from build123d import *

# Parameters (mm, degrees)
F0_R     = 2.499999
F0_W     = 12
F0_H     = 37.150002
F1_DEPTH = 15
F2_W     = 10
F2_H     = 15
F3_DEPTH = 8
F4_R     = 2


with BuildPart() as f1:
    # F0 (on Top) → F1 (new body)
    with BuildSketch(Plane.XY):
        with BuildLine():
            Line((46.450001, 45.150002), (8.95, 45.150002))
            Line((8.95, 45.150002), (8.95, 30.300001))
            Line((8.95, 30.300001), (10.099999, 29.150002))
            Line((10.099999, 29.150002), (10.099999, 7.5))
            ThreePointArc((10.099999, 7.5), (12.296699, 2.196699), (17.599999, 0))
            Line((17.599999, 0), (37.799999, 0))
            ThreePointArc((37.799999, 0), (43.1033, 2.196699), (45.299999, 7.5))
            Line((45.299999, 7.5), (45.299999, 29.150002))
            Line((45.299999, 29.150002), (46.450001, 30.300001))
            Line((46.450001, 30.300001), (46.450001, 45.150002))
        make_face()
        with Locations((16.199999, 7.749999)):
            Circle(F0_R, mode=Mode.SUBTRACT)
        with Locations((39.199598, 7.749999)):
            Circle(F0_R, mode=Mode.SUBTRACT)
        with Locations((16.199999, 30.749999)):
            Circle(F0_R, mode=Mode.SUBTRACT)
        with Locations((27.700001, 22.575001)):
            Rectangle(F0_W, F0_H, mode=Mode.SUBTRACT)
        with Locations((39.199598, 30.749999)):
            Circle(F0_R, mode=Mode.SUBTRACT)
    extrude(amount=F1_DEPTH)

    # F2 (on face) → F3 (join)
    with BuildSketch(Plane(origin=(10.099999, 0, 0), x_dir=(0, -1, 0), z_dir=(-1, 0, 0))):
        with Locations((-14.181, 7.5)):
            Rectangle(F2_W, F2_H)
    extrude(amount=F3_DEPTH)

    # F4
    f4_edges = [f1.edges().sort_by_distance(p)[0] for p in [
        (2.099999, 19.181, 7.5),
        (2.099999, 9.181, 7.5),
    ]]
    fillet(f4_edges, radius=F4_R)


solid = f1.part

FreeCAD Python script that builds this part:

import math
import FreeCAD as App
import Part
import Sketcher
from FreeCAD import Vector
Q = App.Units.Quantity


def edges_at(feature, points):
    """Names of the edges that pass closest to the given points."""
    edges = feature.Shape.Edges
    near = lambda p: min(range(len(edges)), key=lambda i: edges[i].distToShape(Part.Vertex(*p))[0])
    return sorted({f"Edge{near(p) + 1}" for p in points})

doc = App.newDocument("Part")
body = doc.addObject("PartDesign::Body", "Body")

sketch1 = doc.addObject("Sketcher::SketchObject", "Sketch")
body.addObject(sketch1)
sketch1.AttachmentSupport = (doc.XY_Plane, [""])
sketch1.MapMode = "FlatFace"
sketch1.addGeometry(Part.LineSegment(Vector(46.450001, 45.150002, 0), Vector(8.95, 45.150002, 0)), False)
sketch1.addGeometry(Part.LineSegment(Vector(8.95, 45.150002, 0), Vector(8.95, 30.300001, 0)), False)
sketch1.addGeometry(Part.LineSegment(Vector(8.95, 30.300001, 0), Vector(10.099999, 29.150002, 0)), False)
sketch1.addGeometry(Part.LineSegment(Vector(10.099999, 29.150002, 0), Vector(10.099999, 7.5, 0)), False)
sketch1.addGeometry(Part.ArcOfCircle(Part.Circle(Vector(17.6, 7.500001, 0), Vector(0, 0, 1), 7.500001), math.radians(-179.999991), math.radians(-90.000009)), False)
sketch1.addGeometry(Part.LineSegment(Vector(17.599999, 0, 0), Vector(37.799999, 0, 0)), False)
sketch1.addGeometry(Part.ArcOfCircle(Part.Circle(Vector(37.799999, 7.5, 0), Vector(0, 0, 1), 7.5), math.radians(-90.000004), math.radians(0.000004)), False)
sketch1.addGeometry(Part.LineSegment(Vector(45.299999, 7.5, 0), Vector(45.299999, 29.150002, 0)), False)
sketch1.addGeometry(Part.LineSegment(Vector(45.299999, 29.150002, 0), Vector(46.450001, 30.300001, 0)), False)
sketch1.addGeometry(Part.LineSegment(Vector(46.450001, 30.300001, 0), Vector(46.450001, 45.150002, 0)), False)
sketch1.addGeometry(Part.Circle(Vector(16.199999, 7.749999, 0), Vector(0, 0, 1), 2.499999), False)
sketch1.addGeometry(Part.Circle(Vector(39.199598, 7.749999, 0), Vector(0, 0, 1), 2.499999), False)
sketch1.addGeometry(Part.Circle(Vector(16.199999, 30.749999, 0), Vector(0, 0, 1), 2.499999), False)
sketch1.addGeometry(Part.LineSegment(Vector(33.700001, 4, 0), Vector(21.700001, 4, 0)), False)
sketch1.addGeometry(Part.LineSegment(Vector(21.700001, 4, 0), Vector(21.700001, 41.150002, 0)), False)
sketch1.addGeometry(Part.LineSegment(Vector(21.700001, 41.150002, 0), Vector(33.700001, 41.150002, 0)), False)
sketch1.addGeometry(Part.LineSegment(Vector(33.700001, 41.150002, 0), Vector(33.700001, 4, 0)), False)
sketch1.addGeometry(Part.Circle(Vector(39.199598, 30.749999, 0), Vector(0, 0, 1), 2.499999), False)
sketch1.addConstraint(Sketcher.Constraint("Coincident", 0, 2, 1, 1))
sketch1.addConstraint(Sketcher.Constraint("Coincident", 1, 2, 2, 1))
sketch1.addConstraint(Sketcher.Constraint("Coincident", 2, 2, 3, 1))
sketch1.addConstraint(Sketcher.Constraint("Tangent", 3, 2, 4, 1))
sketch1.addConstraint(Sketcher.Constraint("Tangent", 4, 2, 5, 1))
sketch1.addConstraint(Sketcher.Constraint("Tangent", 5, 2, 6, 1))
sketch1.addConstraint(Sketcher.Constraint("Tangent", 6, 2, 7, 1))
sketch1.addConstraint(Sketcher.Constraint("Coincident", 7, 2, 8, 1))
sketch1.addConstraint(Sketcher.Constraint("Coincident", 8, 2, 9, 1))
sketch1.addConstraint(Sketcher.Constraint("Coincident", 9, 2, 0, 1))
sketch1.addConstraint(Sketcher.Constraint("Coincident", 13, 2, 14, 1))
sketch1.addConstraint(Sketcher.Constraint("Coincident", 14, 2, 15, 1))
sketch1.addConstraint(Sketcher.Constraint("Coincident", 15, 2, 16, 1))
sketch1.addConstraint(Sketcher.Constraint("Coincident", 16, 2, 13, 1))
sketch1.addConstraint(Sketcher.Constraint("Horizontal", 0))
sketch1.addConstraint(Sketcher.Constraint("Vertical", 1))
sketch1.addConstraint(Sketcher.Constraint("Vertical", 3))
sketch1.addConstraint(Sketcher.Constraint("Horizontal", 5))
sketch1.addConstraint(Sketcher.Constraint("Vertical", 7))
sketch1.addConstraint(Sketcher.Constraint("Vertical", 9))
sketch1.addConstraint(Sketcher.Constraint("Horizontal", 13))
sketch1.addConstraint(Sketcher.Constraint("Vertical", 14))
sketch1.addConstraint(Sketcher.Constraint("Horizontal", 15))
sketch1.addConstraint(Sketcher.Constraint("Vertical", 16))
sketch1.addConstraint(Sketcher.Constraint("Equal", 4, 6))
sketch1.addConstraint(Sketcher.Constraint("Equal", 10, 11))
sketch1.addConstraint(Sketcher.Constraint("Equal", 11, 12))
sketch1.addConstraint(Sketcher.Constraint("Equal", 12, 17))
sketch1.addConstraint(Sketcher.Constraint("PointOnObject", 4, 2, -1))
sketch1.addConstraint(Sketcher.Constraint("Perpendicular", 2, 8))
sketch1.addConstraint(Sketcher.Constraint("Horizontal", 10, 3, 11, 3))
sketch1.addConstraint(Sketcher.Constraint("Horizontal", 12, 3, 17, 3))
sketch1.addConstraint(Sketcher.Constraint("Horizontal", 2, 2, 7, 2))
sketch1.addConstraint(Sketcher.Constraint("Horizontal", 1, 2, 8, 2))
sketch1.addConstraint(Sketcher.Constraint("Vertical", 10, 3, 12, 3))
sketch1.addConstraint(Sketcher.Constraint("Vertical", 11, 3, 17, 3))
sketch1.addConstraint(Sketcher.Constraint("Radius", 4, 7.500001))
sketch1.addConstraint(Sketcher.Constraint("DistanceX", 13, 2, 13, 1, 12.0))
sketch1.addConstraint(Sketcher.Constraint("Angle", 2, Q("-45 deg")))
sketch1.addConstraint(Sketcher.Constraint("DistanceX", 0, 2, 0, 1, 37.500001))
sketch1.addConstraint(Sketcher.Constraint("DistanceX", 5, 1, 5, 2, 20.2))
sketch1.addConstraint(Sketcher.Constraint("DistanceY", -1, 1, 13, 2, 4.0))
sketch1.addConstraint(Sketcher.Constraint("DistanceY", 10, 3, 12, 3, 23.0))
sketch1.addConstraint(Sketcher.Constraint("DistanceY", 2, 2, 0, 2, 16.0))
sketch1.addConstraint(Sketcher.Constraint("DistanceY", 14, 2, 0, 2, 4.0))
sketch1.addConstraint(Sketcher.Constraint("DistanceX", -1, 1, 4, 3, 17.6))
sketch1.addConstraint(Sketcher.Constraint("DistanceX", -1, 1, 10, 3, 16.199999))
sketch1.addConstraint(Sketcher.Constraint("DistanceY", -1, 1, 1, 2, 30.300001))
sketch1.addConstraint(Sketcher.Constraint("DistanceX", -1, 1, 13, 2, 21.700001))
sketch1.addConstraint(Sketcher.Constraint("DistanceY", -1, 1, 10, 3, 7.749999))
sketch1.addConstraint(Sketcher.Constraint("Diameter", 10, 4.999998))
sketch1.addConstraint(Sketcher.Constraint("DistanceX", -1, 1, 11, 3, 39.199598))
pad1 = doc.addObject("PartDesign::Pad", "Pad")
body.addObject(pad1)
pad1.Profile = sketch1
pad1.Length = 15

sketch2 = doc.addObject("Sketcher::SketchObject", "Sketch001")
body.addObject(sketch2)
sketch2.AttachmentSupport = (doc.YZ_Plane, [""])
sketch2.MapMode = "FlatFace"
sketch2.AttachmentOffset = App.Placement(Vector(0, 0, 10.099999), App.Rotation())
sketch2.addGeometry(Part.LineSegment(Vector(19.181, 15, 0), Vector(19.181, 0, 0)), False)
sketch2.addGeometry(Part.LineSegment(Vector(19.181, 0, 0), Vector(9.181, 0, 0)), False)
sketch2.addGeometry(Part.LineSegment(Vector(9.181, 0, 0), Vector(9.181, 15, 0)), False)
sketch2.addGeometry(Part.LineSegment(Vector(9.181, 15, 0), Vector(19.181, 15, 0)), False)
sketch2.addConstraint(Sketcher.Constraint("Coincident", 0, 2, 1, 1))
sketch2.addConstraint(Sketcher.Constraint("Coincident", 1, 2, 2, 1))
sketch2.addConstraint(Sketcher.Constraint("Coincident", 2, 2, 3, 1))
sketch2.addConstraint(Sketcher.Constraint("Coincident", 3, 2, 0, 1))
sketch2.addConstraint(Sketcher.Constraint("Vertical", 0))
sketch2.addConstraint(Sketcher.Constraint("Horizontal", 1))
sketch2.addConstraint(Sketcher.Constraint("Vertical", 2))
sketch2.addConstraint(Sketcher.Constraint("Horizontal", 3))
sketch2.addConstraint(Sketcher.Constraint("PointOnObject", 0, 2, -1))
sketch2.addConstraint(Sketcher.Constraint("DistanceX", 1, 2, 1, 1, 10.0))
sketch2.addConstraint(Sketcher.Constraint("DistanceY", 0, 2, 0, 1, 15.0))
sketch2.addConstraint(Sketcher.Constraint("DistanceX", -1, 1, 0, 2, 19.181))
pad2 = doc.addObject("PartDesign::Pad", "Pad001")
body.addObject(pad2)
pad2.Profile = sketch2
pad2.Length = 8
pad2.Reversed = True
doc.recompute()

fillet = doc.addObject("PartDesign::Fillet", "Fillet")
body.addObject(fillet)
fillet.Base = (pad2, edges_at(pad2, [(2.1, 19.181, 7.5), (2.1, 9.181, 7.5)]))
fillet.Radius = 2

doc.recompute()
